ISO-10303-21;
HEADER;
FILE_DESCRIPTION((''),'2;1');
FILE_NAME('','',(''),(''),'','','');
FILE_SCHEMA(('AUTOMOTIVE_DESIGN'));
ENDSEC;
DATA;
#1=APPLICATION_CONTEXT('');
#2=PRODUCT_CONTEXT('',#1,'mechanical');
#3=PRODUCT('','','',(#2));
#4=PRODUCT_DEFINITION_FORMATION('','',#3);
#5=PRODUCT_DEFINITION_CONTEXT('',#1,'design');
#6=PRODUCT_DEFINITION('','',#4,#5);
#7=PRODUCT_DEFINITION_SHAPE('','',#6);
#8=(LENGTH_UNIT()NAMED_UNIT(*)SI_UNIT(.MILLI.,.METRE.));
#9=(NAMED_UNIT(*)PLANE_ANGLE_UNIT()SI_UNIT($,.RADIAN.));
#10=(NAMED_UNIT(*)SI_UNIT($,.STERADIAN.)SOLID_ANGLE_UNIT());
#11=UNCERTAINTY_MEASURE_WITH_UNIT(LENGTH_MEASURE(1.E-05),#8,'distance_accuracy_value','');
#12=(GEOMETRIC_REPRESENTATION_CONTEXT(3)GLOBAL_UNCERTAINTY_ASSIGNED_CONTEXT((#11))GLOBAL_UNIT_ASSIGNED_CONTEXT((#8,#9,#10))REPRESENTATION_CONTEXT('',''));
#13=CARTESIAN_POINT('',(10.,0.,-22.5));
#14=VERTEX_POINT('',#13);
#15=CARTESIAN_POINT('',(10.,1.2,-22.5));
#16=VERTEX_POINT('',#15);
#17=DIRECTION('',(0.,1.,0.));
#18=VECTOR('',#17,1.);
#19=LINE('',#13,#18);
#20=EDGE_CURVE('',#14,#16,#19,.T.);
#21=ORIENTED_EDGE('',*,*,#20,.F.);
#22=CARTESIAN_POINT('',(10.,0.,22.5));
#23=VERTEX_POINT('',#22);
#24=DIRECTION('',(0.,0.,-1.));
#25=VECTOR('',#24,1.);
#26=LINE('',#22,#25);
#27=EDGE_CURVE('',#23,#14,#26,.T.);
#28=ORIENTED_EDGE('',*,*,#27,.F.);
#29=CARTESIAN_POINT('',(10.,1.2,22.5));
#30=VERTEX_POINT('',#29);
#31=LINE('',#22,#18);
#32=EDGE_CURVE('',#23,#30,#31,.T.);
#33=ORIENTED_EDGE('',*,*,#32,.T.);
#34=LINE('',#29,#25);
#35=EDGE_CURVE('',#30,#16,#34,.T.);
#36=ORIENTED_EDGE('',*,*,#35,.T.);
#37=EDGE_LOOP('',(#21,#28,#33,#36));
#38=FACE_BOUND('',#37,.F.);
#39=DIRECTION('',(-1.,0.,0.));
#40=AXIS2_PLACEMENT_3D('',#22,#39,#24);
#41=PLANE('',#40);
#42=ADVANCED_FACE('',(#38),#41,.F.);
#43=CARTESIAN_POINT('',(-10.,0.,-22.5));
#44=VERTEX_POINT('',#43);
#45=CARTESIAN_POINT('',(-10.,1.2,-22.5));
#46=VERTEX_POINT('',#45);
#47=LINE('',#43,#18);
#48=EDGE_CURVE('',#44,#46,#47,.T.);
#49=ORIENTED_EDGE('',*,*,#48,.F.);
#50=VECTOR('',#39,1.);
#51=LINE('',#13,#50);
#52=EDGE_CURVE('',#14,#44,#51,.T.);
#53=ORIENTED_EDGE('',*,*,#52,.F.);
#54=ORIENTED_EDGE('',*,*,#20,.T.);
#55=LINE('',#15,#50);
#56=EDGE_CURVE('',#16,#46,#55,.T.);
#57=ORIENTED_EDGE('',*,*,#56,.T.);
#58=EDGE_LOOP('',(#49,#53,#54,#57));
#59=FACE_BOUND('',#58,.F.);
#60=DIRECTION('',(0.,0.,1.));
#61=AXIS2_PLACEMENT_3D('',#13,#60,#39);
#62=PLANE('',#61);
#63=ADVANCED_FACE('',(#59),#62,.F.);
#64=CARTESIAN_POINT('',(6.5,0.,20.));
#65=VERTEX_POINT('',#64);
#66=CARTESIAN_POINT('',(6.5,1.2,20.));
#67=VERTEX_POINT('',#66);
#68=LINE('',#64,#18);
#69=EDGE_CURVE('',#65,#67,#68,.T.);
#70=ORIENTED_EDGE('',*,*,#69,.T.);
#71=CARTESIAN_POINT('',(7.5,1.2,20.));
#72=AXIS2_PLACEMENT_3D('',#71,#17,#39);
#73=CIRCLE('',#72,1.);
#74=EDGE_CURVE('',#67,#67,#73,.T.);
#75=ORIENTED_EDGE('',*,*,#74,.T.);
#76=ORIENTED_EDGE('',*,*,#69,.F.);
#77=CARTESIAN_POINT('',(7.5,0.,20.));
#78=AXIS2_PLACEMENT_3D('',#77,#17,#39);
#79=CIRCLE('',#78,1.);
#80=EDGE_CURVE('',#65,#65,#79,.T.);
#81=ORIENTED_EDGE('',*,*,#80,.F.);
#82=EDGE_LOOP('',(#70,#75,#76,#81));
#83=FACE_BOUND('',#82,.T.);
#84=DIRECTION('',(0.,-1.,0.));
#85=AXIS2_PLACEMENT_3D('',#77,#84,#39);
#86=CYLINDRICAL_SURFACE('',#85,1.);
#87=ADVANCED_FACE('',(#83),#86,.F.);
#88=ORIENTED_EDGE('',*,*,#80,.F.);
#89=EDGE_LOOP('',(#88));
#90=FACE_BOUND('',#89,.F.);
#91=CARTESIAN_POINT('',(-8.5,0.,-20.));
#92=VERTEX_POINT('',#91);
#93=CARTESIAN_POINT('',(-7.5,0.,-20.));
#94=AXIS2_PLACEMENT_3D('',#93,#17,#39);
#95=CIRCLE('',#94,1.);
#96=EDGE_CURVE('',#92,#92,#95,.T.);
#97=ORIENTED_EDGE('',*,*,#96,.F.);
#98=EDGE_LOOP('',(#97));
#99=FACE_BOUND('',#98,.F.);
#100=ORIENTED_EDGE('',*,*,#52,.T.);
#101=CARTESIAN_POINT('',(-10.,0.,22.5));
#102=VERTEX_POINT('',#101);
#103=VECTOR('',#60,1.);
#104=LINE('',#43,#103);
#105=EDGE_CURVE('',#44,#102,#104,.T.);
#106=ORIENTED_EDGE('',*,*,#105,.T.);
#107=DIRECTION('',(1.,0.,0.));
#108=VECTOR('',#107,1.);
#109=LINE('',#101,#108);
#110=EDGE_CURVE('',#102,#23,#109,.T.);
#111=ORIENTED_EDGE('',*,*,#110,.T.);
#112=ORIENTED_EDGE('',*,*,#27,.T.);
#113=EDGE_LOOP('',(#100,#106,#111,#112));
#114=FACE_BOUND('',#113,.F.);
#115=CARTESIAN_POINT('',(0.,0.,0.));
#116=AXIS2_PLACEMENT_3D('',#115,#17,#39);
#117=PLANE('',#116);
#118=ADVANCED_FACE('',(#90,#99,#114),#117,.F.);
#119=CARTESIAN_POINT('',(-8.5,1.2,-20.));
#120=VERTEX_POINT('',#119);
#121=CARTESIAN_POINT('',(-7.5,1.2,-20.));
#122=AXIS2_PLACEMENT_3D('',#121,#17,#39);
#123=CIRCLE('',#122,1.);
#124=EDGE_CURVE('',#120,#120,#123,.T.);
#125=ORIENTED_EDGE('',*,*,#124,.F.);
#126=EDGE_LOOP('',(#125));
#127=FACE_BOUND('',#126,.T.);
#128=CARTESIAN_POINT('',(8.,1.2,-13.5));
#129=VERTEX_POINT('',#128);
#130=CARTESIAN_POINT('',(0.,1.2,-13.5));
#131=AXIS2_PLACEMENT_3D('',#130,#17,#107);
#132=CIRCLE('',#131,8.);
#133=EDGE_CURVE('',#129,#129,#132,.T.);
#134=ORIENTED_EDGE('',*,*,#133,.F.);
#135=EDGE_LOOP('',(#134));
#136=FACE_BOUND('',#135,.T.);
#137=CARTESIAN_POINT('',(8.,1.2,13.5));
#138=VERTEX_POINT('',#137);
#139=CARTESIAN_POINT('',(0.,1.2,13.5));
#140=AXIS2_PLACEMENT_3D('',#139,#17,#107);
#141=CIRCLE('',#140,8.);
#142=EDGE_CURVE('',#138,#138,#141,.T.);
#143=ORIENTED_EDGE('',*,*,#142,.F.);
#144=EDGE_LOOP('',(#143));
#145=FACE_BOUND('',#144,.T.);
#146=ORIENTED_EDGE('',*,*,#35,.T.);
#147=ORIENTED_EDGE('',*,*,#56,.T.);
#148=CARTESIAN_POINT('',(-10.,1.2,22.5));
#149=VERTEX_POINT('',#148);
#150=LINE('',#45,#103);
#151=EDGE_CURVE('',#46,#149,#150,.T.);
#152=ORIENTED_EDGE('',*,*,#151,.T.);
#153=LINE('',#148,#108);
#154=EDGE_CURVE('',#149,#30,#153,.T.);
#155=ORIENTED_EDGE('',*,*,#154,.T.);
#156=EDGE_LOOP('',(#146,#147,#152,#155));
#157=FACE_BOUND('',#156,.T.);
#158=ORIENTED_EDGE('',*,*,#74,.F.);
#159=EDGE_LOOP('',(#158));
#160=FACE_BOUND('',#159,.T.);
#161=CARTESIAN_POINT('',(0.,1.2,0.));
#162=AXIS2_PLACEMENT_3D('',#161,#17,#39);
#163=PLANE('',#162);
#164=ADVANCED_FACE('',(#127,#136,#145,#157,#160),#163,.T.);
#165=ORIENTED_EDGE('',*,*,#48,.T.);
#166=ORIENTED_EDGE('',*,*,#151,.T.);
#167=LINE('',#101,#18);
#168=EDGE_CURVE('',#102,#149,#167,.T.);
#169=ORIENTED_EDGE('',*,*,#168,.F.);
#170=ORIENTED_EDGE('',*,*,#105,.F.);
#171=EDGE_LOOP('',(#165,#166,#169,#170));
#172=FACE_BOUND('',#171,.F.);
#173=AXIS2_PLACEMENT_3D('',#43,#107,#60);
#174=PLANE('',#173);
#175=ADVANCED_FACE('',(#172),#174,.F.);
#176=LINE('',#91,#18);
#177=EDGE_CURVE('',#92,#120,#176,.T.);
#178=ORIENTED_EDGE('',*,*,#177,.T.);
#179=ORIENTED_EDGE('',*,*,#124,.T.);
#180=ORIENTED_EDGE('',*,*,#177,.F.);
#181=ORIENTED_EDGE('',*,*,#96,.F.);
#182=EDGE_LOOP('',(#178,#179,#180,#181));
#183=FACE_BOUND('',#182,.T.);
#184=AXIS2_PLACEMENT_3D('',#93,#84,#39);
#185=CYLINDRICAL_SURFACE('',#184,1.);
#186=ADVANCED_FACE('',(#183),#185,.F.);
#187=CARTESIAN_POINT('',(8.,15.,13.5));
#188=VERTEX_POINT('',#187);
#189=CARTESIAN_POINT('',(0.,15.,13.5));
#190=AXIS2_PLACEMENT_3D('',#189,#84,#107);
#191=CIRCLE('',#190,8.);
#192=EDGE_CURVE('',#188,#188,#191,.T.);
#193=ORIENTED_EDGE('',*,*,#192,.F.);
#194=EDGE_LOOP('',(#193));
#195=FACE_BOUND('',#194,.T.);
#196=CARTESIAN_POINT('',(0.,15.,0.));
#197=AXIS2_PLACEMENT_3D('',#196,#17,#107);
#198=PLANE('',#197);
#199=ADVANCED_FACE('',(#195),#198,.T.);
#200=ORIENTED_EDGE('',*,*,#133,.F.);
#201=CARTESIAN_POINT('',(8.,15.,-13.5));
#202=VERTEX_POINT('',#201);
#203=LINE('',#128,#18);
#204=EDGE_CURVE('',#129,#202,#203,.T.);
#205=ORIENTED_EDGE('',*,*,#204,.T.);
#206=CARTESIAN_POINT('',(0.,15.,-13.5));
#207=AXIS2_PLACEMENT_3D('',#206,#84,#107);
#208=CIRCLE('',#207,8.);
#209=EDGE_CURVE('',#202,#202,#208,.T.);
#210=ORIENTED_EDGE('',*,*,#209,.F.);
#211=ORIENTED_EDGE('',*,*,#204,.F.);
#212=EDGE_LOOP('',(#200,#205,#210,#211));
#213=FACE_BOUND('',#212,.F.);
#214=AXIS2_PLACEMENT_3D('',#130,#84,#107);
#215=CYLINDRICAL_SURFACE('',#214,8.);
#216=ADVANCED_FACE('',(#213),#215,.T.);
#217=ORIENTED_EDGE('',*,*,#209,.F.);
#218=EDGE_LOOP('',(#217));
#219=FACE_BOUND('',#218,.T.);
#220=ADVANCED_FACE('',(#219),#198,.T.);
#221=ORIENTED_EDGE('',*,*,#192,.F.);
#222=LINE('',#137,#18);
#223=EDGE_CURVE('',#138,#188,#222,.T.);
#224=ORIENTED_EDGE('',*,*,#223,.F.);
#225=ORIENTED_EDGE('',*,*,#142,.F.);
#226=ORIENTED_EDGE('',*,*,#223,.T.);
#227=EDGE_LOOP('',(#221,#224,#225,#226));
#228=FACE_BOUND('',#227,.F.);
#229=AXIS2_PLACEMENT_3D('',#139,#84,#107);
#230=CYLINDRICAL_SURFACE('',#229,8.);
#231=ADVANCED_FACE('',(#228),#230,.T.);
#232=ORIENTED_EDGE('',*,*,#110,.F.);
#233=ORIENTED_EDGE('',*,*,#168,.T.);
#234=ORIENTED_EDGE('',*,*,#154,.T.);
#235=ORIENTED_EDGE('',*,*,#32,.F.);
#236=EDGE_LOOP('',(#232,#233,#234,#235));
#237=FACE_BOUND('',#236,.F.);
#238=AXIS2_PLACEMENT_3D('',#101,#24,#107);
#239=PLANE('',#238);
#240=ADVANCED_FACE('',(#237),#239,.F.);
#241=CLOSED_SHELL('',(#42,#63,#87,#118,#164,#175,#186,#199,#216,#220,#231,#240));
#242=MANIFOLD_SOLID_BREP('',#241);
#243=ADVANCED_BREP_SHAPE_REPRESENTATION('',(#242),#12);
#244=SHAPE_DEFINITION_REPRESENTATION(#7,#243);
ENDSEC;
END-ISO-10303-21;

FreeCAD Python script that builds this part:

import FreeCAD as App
import Part
import Sketcher
from FreeCAD import Vector
Q = App.Units.Quantity

doc = App.newDocument("Part")
params = doc.addObject("Spreadsheet::Sheet", "Params")
for row, (alias, value) in enumerate([
    ("sketch1_diameter", "2 mm"),
    ("sketch1_width", "20 mm"),
    ("sketch1_height", "45 mm"),
    ("pad1_length", "1.2 mm"),
    ("sketch2_diameter", "16 mm"),
    ("pad2_length", "13.8 mm"),
], start=1):
    params.set(f"A{row}", alias)
    params.set(f"B{row}", "=" + value)
    params.setAlias(f"B{row}", alias)

body = doc.addObject("PartDesign::Body", "Body")

sketch1 = body.newObject("Sketcher::SketchObject", "Sketch")
sketch1.AttachmentSupport = (doc.getObject("XZ_Plane"), [""])
sketch1.MapMode = "FlatFace"
sketch1.addGeometry([
    Part.LineSegment(Vector(-10, -22.5, 0), Vector(-10, 22.5, 0)),
    Part.LineSegment(Vector(-10, 22.5, 0), Vector(10, 22.5, 0)),
    Part.LineSegment(Vector(10, 22.5, 0), Vector(10, -22.5, 0)),
    Part.LineSegment(Vector(10, -22.5, 0), Vector(-10, -22.5, 0)),
    Part.Circle(Vector(-7.5, -20, 0), Vector(0, 0, 1), 1),
    Part.Circle(Vector(7.5, 20, 0), Vector(0, 0, 1), 1),
], False)
sketch1.addConstraint([
    Sketcher.Constraint("Coincident", 0, 2, 1, 1),
    Sketcher.Constraint("Coincident", 1, 2, 2, 1),
    Sketcher.Constraint("Coincident", 2, 2, 3, 1),
    Sketcher.Constraint("Coincident", 3, 2, 0, 1),
    Sketcher.Constraint("Vertical", 0),
    Sketcher.Constraint("Horizontal", 1),
    Sketcher.Constraint("Vertical", 2),
    Sketcher.Constraint("Horizontal", 3),
    Sketcher.Constraint("Equal", 4, 5),
    Sketcher.Constraint("Symmetric", 4, 3, 5, 3, -1, 1),
    Sketcher.Constraint("Symmetric", 0, 2, 2, 2, -1, 1),
    Sketcher.Constraint("Diameter", 4, Q("2 mm")),
    Sketcher.Constraint("DistanceX", 1, 1, 1, 2, Q("20 mm")),
    Sketcher.Constraint("DistanceY", 0, 1, 0, 2, Q("45 mm")),
    Sketcher.Constraint("DistanceY", 4, 3, -1, 1, Q("20 mm")),
    Sketcher.Constraint("DistanceX", 4, 3, 5, 3, Q("15 mm")),
])
sketch1.setExpression("Constraints[11]", "Params.sketch1_diameter")
sketch1.setExpression("Constraints[12]", "Params.sketch1_width")
sketch1.setExpression("Constraints[13]", "Params.sketch1_height")
pad1 = body.newObject("PartDesign::Pad", "Pad")
pad1.Profile = sketch1
pad1.setExpression("Length", "Params.pad1_length")
pad1.Reversed = True

sketch2 = body.newObject("Sketcher::SketchObject", "Sketch001")
sketch2.AttachmentSupport = (doc.getObject("XZ_Plane"), [""])
sketch2.MapMode = "FlatFace"
sketch2.AttachmentOffset = App.Placement(Vector(0, 0, -1.2), App.Rotation())
sketch2.addGeometry([
    Part.Circle(Vector(0, -14, 0), Vector(0, 0, 1), 8),
    Part.Circle(Vector(0, 14, 0), Vector(0, 0, 1), 8),
], False)
sketch2.addConstraint([
    Sketcher.Constraint("Equal", 0, 1),
    Sketcher.Constraint("Symmetric", 0, 3, 1, 3, -1, 1),
    Sketcher.Constraint("PointOnObject", 0, 3, -2),
    Sketcher.Constraint("Diameter", 0, Q("16 mm")),
    Sketcher.Constraint("DistanceY", 0, 3, 1, 3, Q("27 mm")),
])
sketch2.setExpression("Constraints[3]", "Params.sketch2_diameter")
pad2 = body.newObject("PartDesign::Pad", "Pad001")
pad2.Profile = sketch2
pad2.setExpression("Length", "Params.pad2_length")
pad2.Reversed = True

doc.recompute()
